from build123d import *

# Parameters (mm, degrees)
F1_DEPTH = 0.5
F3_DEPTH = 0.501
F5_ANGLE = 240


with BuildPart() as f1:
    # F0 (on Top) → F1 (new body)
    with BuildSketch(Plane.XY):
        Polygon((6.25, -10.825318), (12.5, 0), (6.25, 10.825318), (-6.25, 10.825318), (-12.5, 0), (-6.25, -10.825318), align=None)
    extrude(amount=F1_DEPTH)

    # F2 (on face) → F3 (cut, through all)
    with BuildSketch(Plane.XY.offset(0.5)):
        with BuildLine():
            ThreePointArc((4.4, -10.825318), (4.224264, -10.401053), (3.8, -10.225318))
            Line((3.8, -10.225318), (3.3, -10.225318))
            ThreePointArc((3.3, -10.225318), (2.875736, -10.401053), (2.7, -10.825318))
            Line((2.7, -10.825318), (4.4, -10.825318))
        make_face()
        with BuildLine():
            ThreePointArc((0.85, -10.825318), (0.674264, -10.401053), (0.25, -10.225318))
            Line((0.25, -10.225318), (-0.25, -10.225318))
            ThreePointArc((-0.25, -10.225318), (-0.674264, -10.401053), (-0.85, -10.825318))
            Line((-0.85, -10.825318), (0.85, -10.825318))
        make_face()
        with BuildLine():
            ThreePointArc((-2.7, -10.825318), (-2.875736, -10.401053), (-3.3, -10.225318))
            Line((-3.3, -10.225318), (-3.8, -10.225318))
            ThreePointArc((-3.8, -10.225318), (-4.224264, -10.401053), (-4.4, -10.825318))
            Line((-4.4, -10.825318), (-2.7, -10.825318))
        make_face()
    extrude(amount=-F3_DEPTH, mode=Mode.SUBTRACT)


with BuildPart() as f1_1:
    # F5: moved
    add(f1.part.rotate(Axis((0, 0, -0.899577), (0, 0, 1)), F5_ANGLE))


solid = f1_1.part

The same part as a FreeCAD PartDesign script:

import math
import FreeCAD as App
import Part
import Sketcher
Q = App.Units.Quantity


def add_polygon(sketch, points):
    """Adds a closed chain of lines whose ends are joined by coincident constraints."""
    first, n = sketch.GeometryCount, len(points)
    for a, b in zip(points, points[1:] + points[:1]):
        sketch.addGeometry(Part.LineSegment(App.Vector(*a, 0), App.Vector(*b, 0)), False)
    for i in range(n):
        sketch.addConstraint(Sketcher.Constraint("Coincident", first + i, 2, first + (i + 1) % n, 1))

doc = App.newDocument("Part")
params = doc.addObject("Spreadsheet::Sheet", "Params")
for row, (alias, value) in enumerate([
    ("sketch1_width", "12.5 mm"),
    ("pad1_length", "0.5 mm"),
    ("sketch2_radius", "0.599999 mm"),
    ("sketch2_width", "0.5 mm"),
    ("sketch2_width2", "1.7 mm"),
], start=1):
    params.set(f"A{row}", alias)
    params.set(f"B{row}", "=" + value)
    params.setAlias(f"B{row}", alias)

body = doc.addObject("PartDesign::Body", "Body")

sketch1 = doc.addObject("Sketcher::SketchObject", "Sketch")
body.addObject(sketch1)
sketch1.AttachmentSupport = (doc.XY_Plane, [""])
sketch1.MapMode = "FlatFace"
add_polygon(sketch1, [(6, -11), (12, 0), (6, 11), (-6, 11), (-12, 0), (-6, -11)])
sketch1.addConstraint([
    Sketcher.Constraint("Horizontal", 2),
    Sketcher.Constraint("Horizontal", 5),
    Sketcher.Constraint("Symmetric", 0, 2, 3, 2, -1, 1),
    Sketcher.Constraint("Symmetric", 1, 2, 4, 2, -1, 1),
    Sketcher.Constraint("PointOnObject", 0, 2, -1),
    Sketcher.Constraint("Parallel", 0, 3),
    Sketcher.Constraint("Vertical", 2, 2, 4, 2),
    Sketcher.Constraint("Angle", 0, Q("60.000001 deg")),
    Sketcher.Constraint("DistanceX", 2, 2, 2, 1, 12.5),
    Sketcher.Constraint("DistanceX", 3, 2, 0, 2, 25.0),
])
sketch1.setExpression("Constraints[14]", "Params.sketch1_width")
pad1 = doc.addObject("PartDesign::Pad", "Pad")
body.addObject(pad1)
pad1.Profile = sketch1
pad1.setExpression("Length", "Params.pad1_length")

sketch2 = doc.addObject("Sketcher::SketchObject", "Sketch001")
body.addObject(sketch2)
sketch2.AttachmentSupport = (doc.XY_Plane, [""])
sketch2.MapMode = "FlatFace"
sketch2.AttachmentOffset = App.Placement(App.Vector(0, 0, 0.5), App.Rotation())
sketch2.addGeometry([
    Part.ArcOfCircle(Part.Circle(App.Vector(3.8, -10.8, 0), App.Vector(0, 0, 1), 0.6), math.radians(0), math.radians(90)),
    Part.LineSegment(App.Vector(3.8, -10.2, 0), App.Vector(3.3, -10.2, 0)),
    Part.ArcOfCircle(Part.Circle(App.Vector(3.3, -10.8, 0), App.Vector(0, 0, 1), 0.6), math.radians(90), math.radians(180)),
    Part.LineSegment(App.Vector(2.7, -10.8, 0), App.Vector(4.4, -10.8, 0)),
    Part.ArcOfCircle(Part.Circle(App.Vector(0.3, -10.8, 0), App.Vector(0, 0, 1), 0.6), math.radians(0), math.radians(90)),
    Part.LineSegment(App.Vector(0.2, -10.2, 0), App.Vector(-0.2, -10.2, 0)),
    Part.ArcOfCircle(Part.Circle(App.Vector(-0.3, -10.8, 0), App.Vector(0, 0, 1), 0.6), math.radians(90), math.radians(180)),
    Part.LineSegment(App.Vector(-0.8, -10.8, 0), App.Vector(0.8, -10.8, 0)),
    Part.ArcOfCircle(Part.Circle(App.Vector(-3.3, -10.8, 0), App.Vector(0, 0, 1), 0.6), math.radians(0), math.radians(90)),
    Part.LineSegment(App.Vector(-3.3, -10.2, 0), App.Vector(-3.8, -10.2, 0)),
    Part.ArcOfCircle(Part.Circle(App.Vector(-3.8, -10.8, 0), App.Vector(0, 0, 1), 0.6), math.radians(90), math.radians(180)),
    Part.LineSegment(App.Vector(-4.4, -10.8, 0), App.Vector(-2.7, -10.8, 0)),
], False)
sketch2.addConstraint([
    Sketcher.Constraint("Coincident", 0, 2, 1, 1),
    Sketcher.Constraint("Coincident", 1, 2, 2, 1),
    Sketcher.Constraint("Coincident", 2, 2, 3, 1),
    Sketcher.Constraint("Coincident", 3, 2, 0, 1),
    Sketcher.Constraint("Coincident", 4, 2, 5, 1),
    Sketcher.Constraint("Coincident", 5, 2, 6, 1),
    Sketcher.Constraint("Coincident", 6, 2, 7, 1),
    Sketcher.Constraint("Coincident", 7, 2, 4, 1),
    Sketcher.Constraint("Coincident", 8, 2, 9, 1),
    Sketcher.Constraint("Coincident", 9, 2, 10, 1),
    Sketcher.Constraint("Coincident", 10, 2, 11, 1),
    Sketcher.Constraint("Coincident", 11, 2, 8, 1),
    Sketcher.Constraint("Horizontal", 1),
    Sketcher.Constraint("Horizontal", 3),
    Sketcher.Constraint("Horizontal", 5),
    Sketcher.Constraint("Horizontal", 7),
    Sketcher.Constraint("Horizontal", 9),
    Sketcher.Constraint("Horizontal", 11),
    Sketcher.Constraint("Equal", 0, 2),
    Sketcher.Constraint("Equal", 2, 4),
    Sketcher.Constraint("Equal", 4, 6),
    Sketcher.Constraint("Equal", 6, 8),
    Sketcher.Constraint("Equal", 8, 10),
    Sketcher.Constraint("Symmetric", 2, 3, 8, 3, -2),
    Sketcher.Constraint("Symmetric", 3, 2, 10, 2, -2),
    Sketcher.Constraint("Horizontal", 2, 3, 4, 3),
    Sketcher.Constraint("Horizontal", 10, 3, 2, 2),
    Sketcher.Constraint("Horizontal", 3, 2, 6, 2),
    Sketcher.Constraint("Vertical", 2, 3, 1, 2),
    Sketcher.Constraint("Vertical", 6, 3, 5, 2),
    Sketcher.Constraint("Vertical", 10, 3, 9, 2),
    Sketcher.Constraint("Equal", 1, 5),
    Sketcher.Constraint("Equal", 3, 7),
    Sketcher.Constraint("Equal", 5, 9),
    Sketcher.Constraint("Radius", 0, 0.599999),
    Sketcher.Constraint("DistanceX", 1, 2, 1, 1, 0.5),
    Sketcher.Constraint("DistanceX", 3, 1, 3, 2, 1.7),
    Sketcher.Constraint("DistanceX", -1, 1, 0, 3, 3.800001),
    Sketcher.Constraint("DistanceX", -1, 1, 4, 3, 0.250001),
    Sketcher.Constraint("DistanceY", 0, 2, -1, 1, 10.225318),
])
sketch2.setExpression("Constraints[34]", "Params.sketch2_radius")
sketch2.setExpression("Constraints[35]", "Params.sketch2_width")
sketch2.setExpression("Constraints[36]", "Params.sketch2_width2")
pocket1 = doc.addObject("PartDesign::Pocket", "Pocket")
body.addObject(pocket1)
pocket1.Profile = sketch2
pocket1.Type = "ThroughAll"
body2 = doc.addObject("PartDesign::Body", "Body001")
doc.recompute()

body.Placement = App.Placement(App.Vector(0, 0, 0), App.Rotation(App.Vector(0, 0, 1), 240))
boolean = doc.addObject("PartDesign::Boolean", "Boolean")
body2.addObject(boolean)
boolean.Type = "Fuse"
boolean.addObjects([body])

doc.recompute()
